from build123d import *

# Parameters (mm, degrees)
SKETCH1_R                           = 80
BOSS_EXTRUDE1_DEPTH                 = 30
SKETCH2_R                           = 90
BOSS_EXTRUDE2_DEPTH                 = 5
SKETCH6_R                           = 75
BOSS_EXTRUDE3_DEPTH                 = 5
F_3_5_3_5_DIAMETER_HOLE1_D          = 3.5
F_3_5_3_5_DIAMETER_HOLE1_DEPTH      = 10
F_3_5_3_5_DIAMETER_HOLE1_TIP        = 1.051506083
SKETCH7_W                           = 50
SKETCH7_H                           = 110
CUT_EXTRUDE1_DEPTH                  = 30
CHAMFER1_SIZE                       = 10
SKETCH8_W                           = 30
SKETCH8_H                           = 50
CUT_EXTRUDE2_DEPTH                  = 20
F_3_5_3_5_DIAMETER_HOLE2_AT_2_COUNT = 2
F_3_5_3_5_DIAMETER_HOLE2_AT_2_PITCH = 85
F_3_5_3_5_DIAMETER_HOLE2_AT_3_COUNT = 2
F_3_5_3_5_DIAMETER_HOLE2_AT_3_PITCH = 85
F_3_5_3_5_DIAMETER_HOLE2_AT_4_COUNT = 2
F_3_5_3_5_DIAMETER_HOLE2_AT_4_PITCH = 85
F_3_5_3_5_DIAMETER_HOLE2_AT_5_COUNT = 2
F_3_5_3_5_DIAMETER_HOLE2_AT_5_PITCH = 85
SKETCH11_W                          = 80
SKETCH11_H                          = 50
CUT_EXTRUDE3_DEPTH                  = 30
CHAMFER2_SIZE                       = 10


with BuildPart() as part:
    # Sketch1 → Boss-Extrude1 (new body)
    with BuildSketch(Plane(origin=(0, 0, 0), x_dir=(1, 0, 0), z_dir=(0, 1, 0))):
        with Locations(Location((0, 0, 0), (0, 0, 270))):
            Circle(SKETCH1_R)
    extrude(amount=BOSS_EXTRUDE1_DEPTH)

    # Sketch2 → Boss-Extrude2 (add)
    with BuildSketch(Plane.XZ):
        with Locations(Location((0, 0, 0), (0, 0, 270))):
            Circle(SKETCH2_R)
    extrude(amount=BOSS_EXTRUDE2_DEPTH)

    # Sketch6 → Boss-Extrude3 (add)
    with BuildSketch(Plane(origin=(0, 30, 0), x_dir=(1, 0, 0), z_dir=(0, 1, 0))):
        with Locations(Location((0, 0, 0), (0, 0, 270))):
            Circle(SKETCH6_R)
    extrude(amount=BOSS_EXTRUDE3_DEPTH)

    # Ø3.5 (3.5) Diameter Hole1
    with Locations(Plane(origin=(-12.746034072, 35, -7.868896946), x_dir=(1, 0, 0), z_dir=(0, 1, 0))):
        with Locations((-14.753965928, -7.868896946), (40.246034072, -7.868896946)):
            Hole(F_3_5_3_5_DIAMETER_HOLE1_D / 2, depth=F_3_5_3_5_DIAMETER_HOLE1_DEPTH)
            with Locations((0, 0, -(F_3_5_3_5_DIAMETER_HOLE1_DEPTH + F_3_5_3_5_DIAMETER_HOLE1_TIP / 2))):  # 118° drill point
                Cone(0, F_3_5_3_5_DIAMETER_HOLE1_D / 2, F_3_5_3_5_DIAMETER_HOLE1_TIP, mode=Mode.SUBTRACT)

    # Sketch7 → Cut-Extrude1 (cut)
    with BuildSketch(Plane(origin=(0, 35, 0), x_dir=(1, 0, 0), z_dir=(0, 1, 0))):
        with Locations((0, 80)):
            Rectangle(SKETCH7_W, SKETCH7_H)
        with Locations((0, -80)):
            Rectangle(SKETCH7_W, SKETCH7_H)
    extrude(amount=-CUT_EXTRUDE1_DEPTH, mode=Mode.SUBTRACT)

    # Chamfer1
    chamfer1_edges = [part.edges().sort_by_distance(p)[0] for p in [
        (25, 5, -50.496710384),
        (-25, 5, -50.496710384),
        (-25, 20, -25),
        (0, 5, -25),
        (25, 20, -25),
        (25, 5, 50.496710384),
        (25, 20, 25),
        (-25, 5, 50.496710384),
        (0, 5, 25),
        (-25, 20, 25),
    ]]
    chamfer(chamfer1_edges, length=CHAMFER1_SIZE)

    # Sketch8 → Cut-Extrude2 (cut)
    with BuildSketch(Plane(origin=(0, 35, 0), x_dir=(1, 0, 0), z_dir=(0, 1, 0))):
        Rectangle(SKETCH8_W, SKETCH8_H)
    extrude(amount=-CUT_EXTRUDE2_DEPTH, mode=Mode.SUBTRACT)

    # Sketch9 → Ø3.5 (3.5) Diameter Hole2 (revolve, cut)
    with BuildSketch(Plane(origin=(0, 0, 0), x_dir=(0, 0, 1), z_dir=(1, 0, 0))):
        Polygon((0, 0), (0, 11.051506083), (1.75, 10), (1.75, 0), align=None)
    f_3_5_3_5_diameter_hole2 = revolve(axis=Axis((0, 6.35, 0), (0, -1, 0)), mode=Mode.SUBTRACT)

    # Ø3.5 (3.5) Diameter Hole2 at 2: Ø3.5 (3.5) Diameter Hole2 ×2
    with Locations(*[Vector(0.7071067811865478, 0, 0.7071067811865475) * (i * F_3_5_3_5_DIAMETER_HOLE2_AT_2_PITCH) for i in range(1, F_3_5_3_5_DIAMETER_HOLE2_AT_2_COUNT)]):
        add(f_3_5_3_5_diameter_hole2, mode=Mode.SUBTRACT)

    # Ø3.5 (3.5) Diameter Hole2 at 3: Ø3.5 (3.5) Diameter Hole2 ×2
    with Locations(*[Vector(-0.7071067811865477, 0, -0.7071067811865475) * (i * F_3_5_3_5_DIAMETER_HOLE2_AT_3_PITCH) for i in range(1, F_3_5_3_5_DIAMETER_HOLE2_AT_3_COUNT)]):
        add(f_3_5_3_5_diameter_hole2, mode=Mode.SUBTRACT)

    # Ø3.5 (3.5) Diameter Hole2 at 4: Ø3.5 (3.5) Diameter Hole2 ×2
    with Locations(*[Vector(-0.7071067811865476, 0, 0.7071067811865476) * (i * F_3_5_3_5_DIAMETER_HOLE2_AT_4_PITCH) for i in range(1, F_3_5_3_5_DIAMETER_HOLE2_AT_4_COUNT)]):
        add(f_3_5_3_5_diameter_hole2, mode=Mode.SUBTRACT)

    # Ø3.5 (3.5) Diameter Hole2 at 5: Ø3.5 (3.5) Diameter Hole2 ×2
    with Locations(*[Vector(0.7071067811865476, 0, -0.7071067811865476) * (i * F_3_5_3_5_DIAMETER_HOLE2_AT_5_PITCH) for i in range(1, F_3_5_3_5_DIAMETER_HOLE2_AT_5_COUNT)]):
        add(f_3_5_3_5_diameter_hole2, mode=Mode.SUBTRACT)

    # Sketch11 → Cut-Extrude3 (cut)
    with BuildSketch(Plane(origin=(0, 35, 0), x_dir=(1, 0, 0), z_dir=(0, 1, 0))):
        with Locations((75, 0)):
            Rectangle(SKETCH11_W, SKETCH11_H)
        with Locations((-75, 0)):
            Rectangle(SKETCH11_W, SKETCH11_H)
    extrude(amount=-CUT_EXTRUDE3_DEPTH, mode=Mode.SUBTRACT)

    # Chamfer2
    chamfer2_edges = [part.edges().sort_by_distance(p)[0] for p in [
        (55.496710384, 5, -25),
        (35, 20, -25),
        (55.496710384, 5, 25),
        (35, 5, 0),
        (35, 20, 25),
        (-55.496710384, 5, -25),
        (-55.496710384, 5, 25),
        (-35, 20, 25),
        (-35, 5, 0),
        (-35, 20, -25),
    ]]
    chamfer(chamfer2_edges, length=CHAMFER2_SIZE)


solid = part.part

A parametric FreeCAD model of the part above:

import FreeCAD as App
import Part
import Sketcher
from FreeCAD import Vector
Q = App.Units.Quantity


def edges_at(feature, points):
    """Names of the edges that pass closest to the given points."""
    edges = feature.Shape.Edges
    near = lambda p: min(range(len(edges)), key=lambda i: edges[i].distToShape(Part.Vertex(*p))[0])
    return sorted({f"Edge{near(p) + 1}" for p in points})


def add_polygon(sketch, points):
    """Adds a closed chain of lines whose ends are joined by coincident constraints."""
    first, n = sketch.GeometryCount, len(points)
    for a, b in zip(points, points[1:] + points[:1]):
        sketch.addGeometry(Part.LineSegment(App.Vector(*a, 0), App.Vector(*b, 0)), False)
    for i in range(n):
        sketch.addConstraint(Sketcher.Constraint("Coincident", first + i, 2, first + (i + 1) % n, 1))

doc = App.newDocument("Part")
params = doc.addObject("Spreadsheet::Sheet", "Params")
for row, (alias, value) in enumerate([
    ("sketch1_diameter", "160 mm"),
    ("pad1_length", "30 mm"),
    ("sketch2_diameter", "180 mm"),
    ("pad2_length", "5 mm"),
    ("sketch3_diameter", "150 mm"),
    ("pad3_length", "5 mm"),
    ("sketch4_diameter", "3.5 mm"),
    ("hole_diameter", "3.5 mm"),
    ("hole_depth", "10 mm"),
    ("sketch5_width", "50 mm"),
    ("sketch5_height", "110 mm"),
    ("pocket1_length", "30 mm"),
    ("chamfer_size", "10 mm"),
    ("sketch6_width", "30 mm"),
    ("sketch6_height", "50 mm"),
    ("pocket2_length", "20 mm"),
    ("sketch7_width", "10 mm"),
    ("sketch7_height", "1.75 mm"),
    ("groove_angle", "360 deg"),
    ("linearpattern_pitch", "85 mm"),
    ("linearpattern2_pitch", "85 mm"),
    ("linearpattern3_pitch", "85 mm"),
    ("linearpattern4_pitch", "85 mm"),
    ("sketch8_width", "80 mm"),
    ("sketch8_height", "50 mm"),
    ("pocket3_length", "30 mm"),
    ("chamfer2_size", "10 mm"),
], start=1):
    params.set(f"A{row}", alias)
    params.set(f"B{row}", "=" + value)
    params.setAlias(f"B{row}", alias)

body = doc.addObject("PartDesign::Body", "Body")

sketch1 = doc.addObject("Sketcher::SketchObject", "Sketch")
body.addObject(sketch1)
sketch1.AttachmentSupport = (doc.XZ_Plane, [""])
sketch1.MapMode = "FlatFace"
sketch1.addGeometry(Part.Circle(Vector(0, 0, 0), Vector(0, 0, 1), 80), False)
sketch1.addConstraint(Sketcher.Constraint("Coincident", 0, 3, -1, 1))
sketch1.addConstraint(Sketcher.Constraint("Diameter", 0, Q("160 mm")))
sketch1.setExpression("Constraints[1]", "Params.sketch1_diameter")
pad1 = doc.addObject("PartDesign::Pad", "Pad")
body.addObject(pad1)
pad1.Profile = sketch1
pad1.setExpression("Length", "Params.pad1_length")
pad1.Reversed = True

sketch2 = doc.addObject("Sketcher::SketchObject", "Sketch001")
body.addObject(sketch2)
sketch2.AttachmentSupport = (doc.XZ_Plane, [""])
sketch2.MapMode = "FlatFace"
sketch2.addGeometry(Part.Circle(Vector(0, 0, 0), Vector(0, 0, 1), 90), False)
sketch2.addConstraint(Sketcher.Constraint("Coincident", 0, 3, -1, 1))
sketch2.addConstraint(Sketcher.Constraint("Diameter", 0, Q("180 mm")))
sketch2.setExpression("Constraints[1]", "Params.sketch2_diameter")
pad2 = doc.addObject("PartDesign::Pad", "Pad001")
body.addObject(pad2)
pad2.Profile = sketch2
pad2.setExpression("Length", "Params.pad2_length")

sketch3 = doc.addObject("Sketcher::SketchObject", "Sketch002")
body.addObject(sketch3)
sketch3.AttachmentSupport = (doc.XZ_Plane, [""])
sketch3.MapMode = "FlatFace"
sketch3.AttachmentOffset = App.Placement(Vector(0, 0, -30), App.Rotation())
sketch3.addGeometry(Part.Circle(Vector(0, 0, 0), Vector(0, 0, 1), 75), False)
sketch3.addConstraint(Sketcher.Constraint("Coincident", 0, 3, -1, 1))
sketch3.addConstraint(Sketcher.Constraint("Diameter", 0, Q("150 mm")))
sketch3.setExpression("Constraints[1]", "Params.sketch3_diameter")
pad3 = doc.addObject("PartDesign::Pad", "Pad002")
body.addObject(pad3)
pad3.Profile = sketch3
pad3.setExpression("Length", "Params.pad3_length")
pad3.Reversed = True

sketch4 = doc.addObject("Sketcher::SketchObject", "Sketch003")
body.addObject(sketch4)
sketch4.AttachmentSupport = (doc.XZ_Plane, [""])
sketch4.MapMode = "FlatFace"
sketch4.AttachmentOffset = App.Placement(Vector(0, 0, -35), App.Rotation())
sketch4.addGeometry(Part.Circle(Vector(-27.5, 0, 0), Vector(0, 0, 1), 1.8), False)
sketch4.addGeometry(Part.Circle(Vector(27.5, 0, 0), Vector(0, 0, 1), 1.8), False)
sketch4.addConstraint(Sketcher.Constraint("Equal", 0, 1))
sketch4.addConstraint(Sketcher.Constraint("Symmetric", 0, 3, 1, 3, -1, 1))
sketch4.addConstraint(Sketcher.Constraint("PointOnObject", 0, 3, -1))
sketch4.addConstraint(Sketcher.Constraint("Diameter", 0, Q("3.5 mm")))
sketch4.addConstraint(Sketcher.Constraint("DistanceX", 0, 3, 1, 3, Q("55 mm")))
sketch4.setExpression("Constraints[3]", "Params.sketch4_diameter")
doc.recompute()
hole = doc.addObject("PartDesign::Hole", "Hole")
body.addObject(hole)
hole.Profile = sketch4
hole.ThreadType = "None"
hole.setExpression("Diameter", "Params.hole_diameter")
hole.DepthType = "Dimension"
hole.setExpression("Depth", "Params.hole_depth")
hole.DrillPoint = "Angled"
hole.DrillPointAngle = 118
hole.Reversed = True

sketch5 = doc.addObject("Sketcher::SketchObject", "Sketch004")
body.addObject(sketch5)
sketch5.AttachmentSupport = (doc.XZ_Plane, [""])
sketch5.MapMode = "FlatFace"
sketch5.AttachmentOffset = App.Placement(Vector(0, 0, -35), App.Rotation())
add_polygon(sketch5, [(-25, -135), (-25, -25), (25, -25), (25, -135)])
add_polygon(sketch5, [(-25, 25), (-25, 135), (25, 135), (25, 25)])
sketch5.addConstraint(Sketcher.Constraint("Vertical", 0))
sketch5.addConstraint(Sketcher.Constraint("Horizontal", 1))
sketch5.addConstraint(Sketcher.Constraint("Vertical", 2))
sketch5.addConstraint(Sketcher.Constraint("Horizontal", 3))
sketch5.addConstraint(Sketcher.Constraint("Vertical", 4))
sketch5.addConstraint(Sketcher.Constraint("Horizontal", 5))
sketch5.addConstraint(Sketcher.Constraint("Vertical", 6))
sketch5.addConstraint(Sketcher.Constraint("Horizontal", 7))
sketch5.addConstraint(Sketcher.Constraint("Symmetric", 2, 2, 4, 2, -1, 1))
sketch5.addConstraint(Sketcher.Constraint("Symmetric", 0, 2, 6, 2, -1, 1))
sketch5.addConstraint(Sketcher.Constraint("Vertical", 3, 2, 4, 2))
sketch5.addConstraint(Sketcher.Constraint("DistanceX", 1, 1, 1, 2, Q("50 mm")))
sketch5.addConstraint(Sketcher.Constraint("DistanceY", 0, 1, 0, 2, Q("110 mm")))
sketch5.addConstraint(Sketcher.Constraint("DistanceY", 0, 2, -1, 1, Q("25 mm")))
sketch5.setExpression("Constraints[19]", "Params.sketch5_width")
sketch5.setExpression("Constraints[20]", "Params.sketch5_height")
pocket1 = doc.addObject("PartDesign::Pocket", "Pocket")
body.addObject(pocket1)
pocket1.Profile = sketch5
pocket1.setExpression("Length", "Params.pocket1_length")
pocket1.Reversed = True
doc.recompute()

chamfer = doc.addObject("PartDesign::Chamfer", "Chamfer")
body.addObject(chamfer)
chamfer.Base = (pocket1, edges_at(pocket1, [
    (25, 5, -50.497),
    (-25, 5, -50.497),
    (-25, 20, -25),
    (0, 5, -25),
    (25, 20, -25),
    (25, 5, 50.497),
    (25, 20, 25),
    (-25, 5, 50.497),
    (0, 5, 25),
    (-25, 20, 25),
]))
chamfer.setExpression("Size", "Params.chamfer_size")

sketch6 = doc.addObject("Sketcher::SketchObject", "Sketch005")
body.addObject(sketch6)
sketch6.AttachmentSupport = (doc.XZ_Plane, [""])
sketch6.MapMode = "FlatFace"
sketch6.AttachmentOffset = App.Placement(Vector(0, 0, -35), App.Rotation())
add_polygon(sketch6, [(-15, -25), (-15, 25), (15, 25), (15, -25)])
sketch6.addConstraint(Sketcher.Constraint("Vertical", 0))
sketch6.addConstraint(Sketcher.Constraint("Horizontal", 1))
sketch6.addConstraint(Sketcher.Constraint("Vertical", 2))
sketch6.addConstraint(Sketcher.Constraint("Horizontal", 3))
sketch6.addConstraint(Sketcher.Constraint("Symmetric", 0, 2, 2, 2, -1, 1))
sketch6.addConstraint(Sketcher.Constraint("DistanceX", 1, 1, 1, 2, Q("30 mm")))
sketch6.addConstraint(Sketcher.Constraint("DistanceY", 0, 1, 0, 2, Q("50 mm")))
sketch6.setExpression("Constraints[9]", "Params.sketch6_width")
sketch6.setExpression("Constraints[10]", "Params.sketch6_height")
pocket2 = doc.addObject("PartDesign::Pocket", "Pocket001")
body.addObject(pocket2)
pocket2.Profile = sketch6
pocket2.setExpression("Length", "Params.pocket2_length")
pocket2.Reversed = True

sketch7 = doc.addObject("Sketcher::SketchObject", "Sketch006")
body.addObject(sketch7)
sketch7.AttachmentSupport = (doc.YZ_Plane, [""])
sketch7.MapMode = "FlatFace"
add_polygon(sketch7, [(-11.1, 0), (0, 0), (0, 1.8), (-10, 1.8)])
sketch7.addConstraint(Sketcher.Constraint("Horizontal", 0))
sketch7.addConstraint(Sketcher.Constraint("Vertical", 1))
sketch7.addConstraint(Sketcher.Constraint("Horizontal", 2))
sketch7.addConstraint(Sketcher.Constraint("Coincident", 0, 2, -1, 1))
sketch7.addConstraint(Sketcher.Constraint("DistanceX", 2, 2, 2, 1, Q("10 mm")))
sketch7.addConstraint(Sketcher.Constraint("Angle", 3, Q("-121 deg")))
sketch7.addConstraint(Sketcher.Constraint("DistanceY", 1, 1, 1, 2, Q("1.75 mm")))
sketch7.setExpression("Constraints[8]", "Params.sketch7_width")
sketch7.setExpression("Constraints[10]", "Params.sketch7_height")
groove = doc.addObject("PartDesign::Groove", "Groove")
body.addObject(groove)
groove.Profile = sketch7
groove.ReferenceAxis = (sketch7, ["H_Axis"])
groove.setExpression("Angle", "Params.groove_angle")
doc.recompute()

datumline = doc.addObject("PartDesign::Line", "DatumLine")
body.addObject(datumline)
datumline.Placement = App.Placement(Vector(0, 0, 0), App.Rotation(Vector(0, 0, 1), Vector(0.707106781, 0, 0.707106781)))
linearpattern = doc.addObject("PartDesign::LinearPattern", "LinearPattern")
body.addObject(linearpattern)
linearpattern.Originals = [groove]
linearpattern.Direction = (datumline, [""])
linearpattern.Mode = "offset"
linearpattern.setExpression("Offset", "Params.linearpattern_pitch")
linearpattern.Occurrences = 2
body.Tip = linearpattern
doc.recompute()

datumline2 = doc.addObject("PartDesign::Line", "DatumLine001")
body.addObject(datumline2)
datumline2.Placement = App.Placement(Vector(0, 0, 0), App.Rotation(Vector(0, 0, 1), Vector(-0.707106781, 0, -0.707106781)))
linearpattern2 = doc.addObject("PartDesign::LinearPattern", "LinearPattern001")
body.addObject(linearpattern2)
linearpattern2.Originals = [groove]
linearpattern2.Direction = (datumline2, [""])
linearpattern2.Mode = "offset"
linearpattern2.setExpression("Offset", "Params.linearpattern2_pitch")
linearpattern2.Occurrences = 2
body.Tip = linearpattern2
doc.recompute()

datumline3 = doc.addObject("PartDesign::Line", "DatumLine002")
body.addObject(datumline3)
datumline3.Placement = App.Placement(Vector(0, 0, 0), App.Rotation(Vector(0, 0, 1), Vector(-0.707106781, 0, 0.707106781)))
linearpattern3 = doc.addObject("PartDesign::LinearPattern", "LinearPattern002")
body.addObject(linearpattern3)
linearpattern3.Originals = [groove]
linearpattern3.Direction = (datumline3, [""])
linearpattern3.Mode = "offset"
linearpattern3.setExpression("Offset", "Params.linearpattern3_pitch")
linearpattern3.Occurrences = 2
body.Tip = linearpattern3
doc.recompute()

datumline4 = doc.addObject("PartDesign::Line", "DatumLine003")
body.addObject(datumline4)
datumline4.Placement = App.Placement(Vector(0, 0, 0), App.Rotation(Vector(0, 0, 1), Vector(0.707106781, 0, -0.707106781)))
linearpattern4 = doc.addObject("PartDesign::LinearPattern", "LinearPattern003")
body.addObject(linearpattern4)
linearpattern4.Originals = [groove]
linearpattern4.Direction = (datumline4, [""])
linearpattern4.Mode = "offset"
linearpattern4.setExpression("Offset", "Params.linearpattern4_pitch")
linearpattern4.Occurrences = 2
body.Tip = linearpattern4

sketch8 = doc.addObject("Sketcher::SketchObject", "Sketch007")
body.addObject(sketch8)
sketch8.AttachmentSupport = (doc.XZ_Plane, [""])
sketch8.MapMode = "FlatFace"
sketch8.AttachmentOffset = App.Placement(Vector(0, 0, -35), App.Rotation())
add_polygon(sketch8, [(35, -25), (35, 25), (115, 25), (115, -25)])
add_polygon(sketch8, [(-115, -25), (-115, 25), (-35, 25), (-35, -25)])
sketch8.addConstraint(Sketcher.Constraint("Vertical", 0))
sketch8.addConstraint(Sketcher.Constraint("Horizontal", 1))
sketch8.addConstraint(Sketcher.Constraint("Vertical", 2))
sketch8.addConstraint(Sketcher.Constraint("Horizontal", 3))
sketch8.addConstraint(Sketcher.Constraint("Vertical", 4))
sketch8.addConstraint(Sketcher.Constraint("Horizontal", 5))
sketch8.addConstraint(Sketcher.Constraint("Vertical", 6))
sketch8.addConstraint(Sketcher.Constraint("Horizontal", 7))
sketch8.addConstraint(Sketcher.Constraint("Symmetric", 2, 2, 4, 2, -1, 1))
sketch8.addConstraint(Sketcher.Constraint("Symmetric", 0, 2, 6, 2, -1, 1))
sketch8.addConstraint(Sketcher.Constraint("Horizontal", 1, 2, 4, 2))
sketch8.addConstraint(Sketcher.Constraint("DistanceX", 1, 1, 1, 2, Q("80 mm")))
sketch8.addConstraint(Sketcher.Constraint("DistanceY", 0, 1, 0, 2, Q("50 mm")))
sketch8.addConstraint(Sketcher.Constraint("DistanceX", -1, 1, 0, 2, Q("35 mm")))
sketch8.setExpression("Constraints[19]", "Params.sketch8_width")
sketch8.setExpression("Constraints[20]", "Params.sketch8_height")
pocket3 = doc.addObject("PartDesign::Pocket", "Pocket002")
body.addObject(pocket3)
pocket3.Profile = sketch8
pocket3.setExpression("Length", "Params.pocket3_length")
pocket3.Reversed = True
doc.recompute()

chamfer2 = doc.addObject("PartDesign::Chamfer", "Chamfer001")
body.addObject(chamfer2)
chamfer2.Base = (pocket3, edges_at(pocket3, [
    (55.497, 5, -25),
    (35, 20, -25),
    (55.497, 5, 25),
    (35, 5, 0),
    (35, 20, 25),
    (-55.497, 5, -25),
    (-55.497, 5, 25),
    (-35, 20, 25),
    (-35, 5, 0),
    (-35, 20, -25),
]))
chamfer2.setExpression("Size", "Params.chamfer2_size")

doc.recompute()
